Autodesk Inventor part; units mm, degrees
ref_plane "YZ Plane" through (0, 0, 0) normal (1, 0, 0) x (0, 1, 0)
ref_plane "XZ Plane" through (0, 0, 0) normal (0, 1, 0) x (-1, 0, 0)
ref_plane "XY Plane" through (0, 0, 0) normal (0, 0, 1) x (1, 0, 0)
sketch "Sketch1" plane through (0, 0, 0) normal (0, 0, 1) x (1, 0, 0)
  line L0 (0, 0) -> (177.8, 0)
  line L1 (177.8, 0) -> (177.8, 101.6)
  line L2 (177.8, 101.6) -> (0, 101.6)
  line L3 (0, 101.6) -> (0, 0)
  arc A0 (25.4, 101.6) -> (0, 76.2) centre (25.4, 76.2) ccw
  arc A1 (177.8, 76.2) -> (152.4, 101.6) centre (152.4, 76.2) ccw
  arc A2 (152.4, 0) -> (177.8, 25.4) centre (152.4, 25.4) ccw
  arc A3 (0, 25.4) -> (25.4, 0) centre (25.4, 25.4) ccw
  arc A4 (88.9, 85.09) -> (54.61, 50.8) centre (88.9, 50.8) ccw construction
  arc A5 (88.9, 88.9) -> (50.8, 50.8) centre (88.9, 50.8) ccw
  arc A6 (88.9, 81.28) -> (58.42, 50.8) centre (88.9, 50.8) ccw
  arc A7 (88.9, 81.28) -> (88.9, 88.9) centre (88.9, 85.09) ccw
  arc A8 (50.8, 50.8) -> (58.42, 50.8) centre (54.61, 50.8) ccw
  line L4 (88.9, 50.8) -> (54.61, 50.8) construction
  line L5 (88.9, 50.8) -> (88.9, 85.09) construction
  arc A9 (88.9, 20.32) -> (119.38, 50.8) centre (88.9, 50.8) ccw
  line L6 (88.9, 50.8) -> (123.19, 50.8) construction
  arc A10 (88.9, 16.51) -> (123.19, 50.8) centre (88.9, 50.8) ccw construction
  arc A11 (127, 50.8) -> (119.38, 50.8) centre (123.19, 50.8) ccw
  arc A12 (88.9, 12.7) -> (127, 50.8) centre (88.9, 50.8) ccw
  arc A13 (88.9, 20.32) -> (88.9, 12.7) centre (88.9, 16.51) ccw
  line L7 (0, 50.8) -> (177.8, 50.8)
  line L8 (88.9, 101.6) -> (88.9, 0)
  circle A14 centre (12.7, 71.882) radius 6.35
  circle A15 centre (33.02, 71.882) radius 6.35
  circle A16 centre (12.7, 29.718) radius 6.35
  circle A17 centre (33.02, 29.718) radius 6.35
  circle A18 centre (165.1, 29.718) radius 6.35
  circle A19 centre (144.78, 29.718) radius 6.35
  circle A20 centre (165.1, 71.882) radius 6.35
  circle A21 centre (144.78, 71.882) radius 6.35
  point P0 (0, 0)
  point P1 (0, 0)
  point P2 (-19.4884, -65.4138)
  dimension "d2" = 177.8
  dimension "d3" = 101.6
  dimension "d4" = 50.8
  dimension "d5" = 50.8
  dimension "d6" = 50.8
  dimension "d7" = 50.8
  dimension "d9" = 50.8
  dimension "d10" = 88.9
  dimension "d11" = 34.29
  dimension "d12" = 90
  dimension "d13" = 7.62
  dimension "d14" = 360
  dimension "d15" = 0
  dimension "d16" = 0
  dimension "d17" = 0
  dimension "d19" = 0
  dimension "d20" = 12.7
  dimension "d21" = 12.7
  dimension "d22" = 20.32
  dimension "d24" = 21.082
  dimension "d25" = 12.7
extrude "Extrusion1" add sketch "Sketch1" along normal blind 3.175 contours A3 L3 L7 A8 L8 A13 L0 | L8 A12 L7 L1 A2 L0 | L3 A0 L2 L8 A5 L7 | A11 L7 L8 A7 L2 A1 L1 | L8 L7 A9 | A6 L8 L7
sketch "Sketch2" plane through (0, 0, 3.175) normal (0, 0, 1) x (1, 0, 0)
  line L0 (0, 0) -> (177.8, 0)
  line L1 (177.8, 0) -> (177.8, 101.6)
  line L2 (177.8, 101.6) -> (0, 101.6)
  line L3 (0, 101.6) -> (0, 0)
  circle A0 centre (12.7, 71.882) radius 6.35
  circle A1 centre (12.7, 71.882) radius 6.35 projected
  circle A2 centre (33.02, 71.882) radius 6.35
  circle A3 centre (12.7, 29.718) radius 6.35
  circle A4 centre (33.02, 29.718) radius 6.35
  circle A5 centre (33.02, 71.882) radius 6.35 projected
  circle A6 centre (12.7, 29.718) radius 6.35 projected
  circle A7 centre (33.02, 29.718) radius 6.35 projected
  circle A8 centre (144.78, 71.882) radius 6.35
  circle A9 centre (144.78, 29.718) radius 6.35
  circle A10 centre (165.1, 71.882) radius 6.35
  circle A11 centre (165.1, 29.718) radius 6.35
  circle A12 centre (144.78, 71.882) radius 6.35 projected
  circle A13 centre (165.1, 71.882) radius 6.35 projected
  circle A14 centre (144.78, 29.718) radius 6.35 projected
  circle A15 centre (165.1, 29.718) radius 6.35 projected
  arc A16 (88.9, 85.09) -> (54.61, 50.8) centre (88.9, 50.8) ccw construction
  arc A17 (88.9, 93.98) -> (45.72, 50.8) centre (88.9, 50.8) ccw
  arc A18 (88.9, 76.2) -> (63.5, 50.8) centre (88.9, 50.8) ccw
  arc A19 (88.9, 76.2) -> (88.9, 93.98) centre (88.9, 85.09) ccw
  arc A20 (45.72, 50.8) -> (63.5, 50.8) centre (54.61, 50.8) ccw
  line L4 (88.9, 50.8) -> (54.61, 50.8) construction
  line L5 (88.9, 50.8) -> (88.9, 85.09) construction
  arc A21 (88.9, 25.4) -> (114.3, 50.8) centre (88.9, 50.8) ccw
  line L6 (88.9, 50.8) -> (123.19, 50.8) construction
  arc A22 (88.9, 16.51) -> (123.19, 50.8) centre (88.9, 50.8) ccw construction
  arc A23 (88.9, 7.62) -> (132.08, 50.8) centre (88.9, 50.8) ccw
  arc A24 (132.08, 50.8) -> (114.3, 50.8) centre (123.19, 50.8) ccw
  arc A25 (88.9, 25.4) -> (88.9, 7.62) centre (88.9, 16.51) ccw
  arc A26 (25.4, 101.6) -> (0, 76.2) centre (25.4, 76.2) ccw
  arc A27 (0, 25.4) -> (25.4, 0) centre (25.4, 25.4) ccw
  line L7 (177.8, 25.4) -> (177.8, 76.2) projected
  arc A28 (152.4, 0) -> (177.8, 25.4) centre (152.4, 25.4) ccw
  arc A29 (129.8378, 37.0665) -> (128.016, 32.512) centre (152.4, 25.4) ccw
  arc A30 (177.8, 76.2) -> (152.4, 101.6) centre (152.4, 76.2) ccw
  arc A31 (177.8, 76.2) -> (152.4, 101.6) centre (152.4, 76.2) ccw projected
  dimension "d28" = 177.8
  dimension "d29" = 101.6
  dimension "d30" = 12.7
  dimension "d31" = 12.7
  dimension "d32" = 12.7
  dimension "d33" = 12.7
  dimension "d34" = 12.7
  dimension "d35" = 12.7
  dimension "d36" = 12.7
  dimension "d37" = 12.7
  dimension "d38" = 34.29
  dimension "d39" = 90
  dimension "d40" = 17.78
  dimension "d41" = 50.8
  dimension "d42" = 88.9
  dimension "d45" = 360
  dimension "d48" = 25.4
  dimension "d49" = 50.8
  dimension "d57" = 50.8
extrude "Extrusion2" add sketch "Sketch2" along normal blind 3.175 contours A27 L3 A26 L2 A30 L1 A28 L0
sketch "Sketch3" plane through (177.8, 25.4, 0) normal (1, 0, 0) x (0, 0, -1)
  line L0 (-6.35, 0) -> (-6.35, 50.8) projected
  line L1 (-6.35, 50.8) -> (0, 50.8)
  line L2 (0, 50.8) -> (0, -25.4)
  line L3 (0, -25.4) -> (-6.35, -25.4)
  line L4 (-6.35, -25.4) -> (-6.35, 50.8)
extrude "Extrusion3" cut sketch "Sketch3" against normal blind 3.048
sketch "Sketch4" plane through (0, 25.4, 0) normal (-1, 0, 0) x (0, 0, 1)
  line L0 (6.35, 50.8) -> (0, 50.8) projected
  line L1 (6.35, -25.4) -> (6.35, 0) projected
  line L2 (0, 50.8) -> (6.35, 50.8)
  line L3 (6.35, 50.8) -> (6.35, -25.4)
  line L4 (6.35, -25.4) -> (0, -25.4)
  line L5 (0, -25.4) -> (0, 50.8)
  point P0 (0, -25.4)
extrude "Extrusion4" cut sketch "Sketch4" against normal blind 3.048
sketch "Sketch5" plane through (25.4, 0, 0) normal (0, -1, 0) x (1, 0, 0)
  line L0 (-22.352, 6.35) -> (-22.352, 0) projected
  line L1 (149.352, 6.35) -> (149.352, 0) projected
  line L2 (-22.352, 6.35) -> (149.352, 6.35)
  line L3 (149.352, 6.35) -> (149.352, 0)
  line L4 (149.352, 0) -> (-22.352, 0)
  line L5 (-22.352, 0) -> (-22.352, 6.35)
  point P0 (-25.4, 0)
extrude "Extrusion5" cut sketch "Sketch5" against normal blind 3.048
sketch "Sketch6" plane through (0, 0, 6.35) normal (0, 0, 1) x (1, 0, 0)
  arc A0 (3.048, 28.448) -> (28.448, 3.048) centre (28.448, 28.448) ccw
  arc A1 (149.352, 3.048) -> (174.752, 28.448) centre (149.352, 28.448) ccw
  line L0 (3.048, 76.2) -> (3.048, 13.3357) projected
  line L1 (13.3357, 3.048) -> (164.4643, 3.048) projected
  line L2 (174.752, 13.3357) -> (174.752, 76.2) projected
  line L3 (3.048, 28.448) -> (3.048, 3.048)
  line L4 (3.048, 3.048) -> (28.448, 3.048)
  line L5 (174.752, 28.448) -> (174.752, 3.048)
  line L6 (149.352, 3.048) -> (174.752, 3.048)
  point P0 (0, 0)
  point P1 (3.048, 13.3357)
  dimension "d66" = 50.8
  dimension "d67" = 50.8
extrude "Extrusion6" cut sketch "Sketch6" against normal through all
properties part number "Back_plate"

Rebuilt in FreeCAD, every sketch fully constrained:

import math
import FreeCAD as App
import Part
import Sketcher

V = App.Vector
Q = App.Units.Quantity


def add_polygon(sketch, points):
    """Adds a closed chain of lines whose ends are joined by coincident constraints."""
    first, n = sketch.GeometryCount, len(points)
    for a, b in zip(points, points[1:] + points[:1]):
        sketch.addGeometry(Part.LineSegment(App.Vector(*a, 0), App.Vector(*b, 0)), False)
    for i in range(n):
        sketch.addConstraint(Sketcher.Constraint("Coincident", first + i, 2, first + (i + 1) % n, 1))

doc = App.newDocument("Part")
body = doc.addObject("PartDesign::Body", "Body")

# Sketch on XY plane
sketch1 = body.newObject("Sketcher::SketchObject", "Sketch")
sketch1.AttachmentSupport = (doc.getObject("XY_Plane"), [""])
sketch1.MapMode = "FlatFace"
sketch1.addGeometry(Part.ArcOfCircle(Part.Circle(V(25.4, 25.4, 0), V(0, 0, 1), 25.4), math.radians(180), math.radians(270)), False)
sketch1.addGeometry(Part.LineSegment(V(25.4, 0, 0), V(152.4, 0, 0)), False)
sketch1.addGeometry(Part.ArcOfCircle(Part.Circle(V(152.4, 25.4, 0), V(0, 0, 1), 25.4), math.radians(-90), math.radians(0)), False)
sketch1.addGeometry(Part.LineSegment(V(177.8, 25.4, 0), V(177.8, 76.2, 0)), False)
sketch1.addGeometry(Part.ArcOfCircle(Part.Circle(V(152.4, 76.2, 0), V(0, 0, 1), 25.4), math.radians(0), math.radians(90)), False)
sketch1.addGeometry(Part.LineSegment(V(152.4, 101.6, 0), V(25.4, 101.6, 0)), False)
sketch1.addGeometry(Part.ArcOfCircle(Part.Circle(V(25.4, 76.2, 0), V(0, 0, 1), 25.4), math.radians(90), math.radians(180)), False)
sketch1.addGeometry(Part.LineSegment(V(0, 76.2, 0), V(0, 25.4, 0)), False)
sketch1.addGeometry(Part.ArcOfCircle(Part.Circle(V(54.6, 50.8, 0), V(0, 0, 1), 3.8), math.radians(180), math.radians(360)), False)
sketch1.addGeometry(Part.ArcOfCircle(Part.Circle(V(88.9, 50.8, 0), V(0, 0, 1), 38.1), math.radians(90), math.radians(180)), False)
sketch1.addGeometry(Part.ArcOfCircle(Part.Circle(V(88.9, 85.1, 0), V(0, 0, 1), 3.8), math.radians(-90), math.radians(90)), False)
sketch1.addGeometry(Part.ArcOfCircle(Part.Circle(V(88.9, 50.8, 0), V(0, 0, 1), 30.5), math.radians(90), math.radians(180)), False)
sketch1.addGeometry(Part.ArcOfCircle(Part.Circle(V(88.9, 16.5, 0), V(0, 0, 1), 3.8), math.radians(90), math.radians(270)), False)
sketch1.addGeometry(Part.ArcOfCircle(Part.Circle(V(88.9, 50.8, 0), V(0, 0, 1), 30.5), math.radians(-90), math.radians(0)), False)
sketch1.addGeometry(Part.ArcOfCircle(Part.Circle(V(123.2, 50.8, 0), V(0, 0, 1), 3.8), math.radians(0), math.radians(180)), False)
sketch1.addGeometry(Part.ArcOfCircle(Part.Circle(V(88.9, 50.8, 0), V(0, 0, 1), 38.1), math.radians(-90), math.radians(0)), False)
sketch1.addGeometry(Part.Circle(V(12.7, 29.7, 0), V(0, 0, 1), 6.3), False)
sketch1.addGeometry(Part.Circle(V(33, 29.7, 0), V(0, 0, 1), 6.3), False)
sketch1.addGeometry(Part.Circle(V(33, 71.9, 0), V(0, 0, 1), 6.3), False)
sketch1.addGeometry(Part.Circle(V(12.7, 71.9, 0), V(0, 0, 1), 6.3), False)
sketch1.addGeometry(Part.Circle(V(165.1, 29.7, 0), V(0, 0, 1), 6.3), False)
sketch1.addGeometry(Part.Circle(V(144.8, 29.7, 0), V(0, 0, 1), 6.3), False)
sketch1.addGeometry(Part.Circle(V(144.8, 71.9, 0), V(0, 0, 1), 6.3), False)
sketch1.addGeometry(Part.Circle(V(165.1, 71.9, 0), V(0, 0, 1), 6.3), False)
sketch1.addConstraint(Sketcher.Constraint("Tangent", 0, 2, 1, 1))
sketch1.addConstraint(Sketcher.Constraint("Tangent", 1, 2, 2, 1))
sketch1.addConstraint(Sketcher.Constraint("Tangent", 2, 2, 3, 1))
sketch1.addConstraint(Sketcher.Constraint("Tangent", 3, 2, 4, 1))
sketch1.addConstraint(Sketcher.Constraint("Tangent", 4, 2, 5, 1))
sketch1.addConstraint(Sketcher.Constraint("Tangent", 5, 2, 6, 1))
sketch1.addConstraint(Sketcher.Constraint("Tangent", 6, 2, 7, 1))
sketch1.addConstraint(Sketcher.Constraint("Tangent", 7, 2, 0, 1))
sketch1.addConstraint(Sketcher.Constraint("Tangent", 8, 1, 9, 2))
sketch1.addConstraint(Sketcher.Constraint("Tangent", 9, 1, 10, 2))
sketch1.addConstraint(Sketcher.Constraint("Tangent", 10, 1, 11, 1))
sketch1.addConstraint(Sketcher.Constraint("Tangent", 11, 2, 8, 2))
sketch1.addConstraint(Sketcher.Constraint("Tangent", 12, 1, 13, 1))
sketch1.addConstraint(Sketcher.Constraint("Tangent", 13, 2, 14, 2))
sketch1.addConstraint(Sketcher.Constraint("Tangent", 14, 1, 15, 2))
sketch1.addConstraint(Sketcher.Constraint("Tangent", 15, 1, 12, 2))
sketch1.addConstraint(Sketcher.Constraint("Horizontal", 1))
sketch1.addConstraint(Sketcher.Constraint("Vertical", 3))
sketch1.addConstraint(Sketcher.Constraint("Horizontal", 5))
sketch1.addConstraint(Sketcher.Constraint("Vertical", 7))
sketch1.addConstraint(Sketcher.Constraint("Coincident", 11, 3, 9, 3))
sketch1.addConstraint(Sketcher.Constraint("Coincident", 13, 3, 9, 3))
sketch1.addConstraint(Sketcher.Constraint("Coincident", 15, 3, 9, 3))
sketch1.addConstraint(Sketcher.Constraint("Equal", 0, 2))
sketch1.addConstraint(Sketcher.Constraint("Equal", 2, 4))
sketch1.addConstraint(Sketcher.Constraint("Equal", 4, 6))
sketch1.addConstraint(Sketcher.Constraint("Equal", 10, 12))
sketch1.addConstraint(Sketcher.Constraint("Equal", 11, 13))
sketch1.addConstraint(Sketcher.Constraint("Equal", 16, 17))
sketch1.addConstraint(Sketcher.Constraint("Equal", 17, 18))
sketch1.addConstraint(Sketcher.Constraint("Equal", 18, 19))
sketch1.addConstraint(Sketcher.Constraint("Equal", 19, 20))
sketch1.addConstraint(Sketcher.Constraint("Equal", 20, 21))
sketch1.addConstraint(Sketcher.Constraint("Equal", 21, 22))
sketch1.addConstraint(Sketcher.Constraint("Equal", 22, 23))
sketch1.addConstraint(Sketcher.Constraint("PointOnObject", 0, 2, -1))
sketch1.addConstraint(Sketcher.Constraint("PointOnObject", 6, 2, -2))
sketch1.addConstraint(Sketcher.Constraint("Horizontal", 8, 3, 9, 3))
sketch1.addConstraint(Sketcher.Constraint("Horizontal", 13, 3, 14, 3))
sketch1.addConstraint(Sketcher.Constraint("Horizontal", 16, 3, 17, 3))
sketch1.addConstraint(Sketcher.Constraint("Horizontal", 18, 3, 19, 3))
sketch1.addConstraint(Sketcher.Constraint("Horizontal", 17, 3, 20, 3))
sketch1.addConstraint(Sketcher.Constraint("Horizontal", 20, 3, 21, 3))
sketch1.addConstraint(Sketcher.Constraint("Horizontal", 19, 3, 22, 3))
sketch1.addConstraint(Sketcher.Constraint("Horizontal", 22, 3, 23, 3))
sketch1.addConstraint(Sketcher.Constraint("Vertical", 9, 3, 10, 3))
sketch1.addConstraint(Sketcher.Constraint("Vertical", 11, 3, 12, 3))
sketch1.addConstraint(Sketcher.Constraint("Vertical", 17, 3, 18, 3))
sketch1.addConstraint(Sketcher.Constraint("Vertical", 16, 3, 19, 3))
sketch1.addConstraint(Sketcher.Constraint("Vertical", 21, 3, 22, 3))
sketch1.addConstraint(Sketcher.Constraint("Vertical", 20, 3, 23, 3))
sketch1.addConstraint(Sketcher.Constraint("Radius", 0, Q("1 in")))
sketch1.addConstraint(Sketcher.Constraint("Diameter", 16, Q("0.5 in")))
sketch1.addConstraint(Sketcher.Constraint("DistanceY", 3, 1, 3, 2, Q("2 in")))
sketch1.addConstraint(Sketcher.Constraint("Radius", 8, Q("0.15 in")))
sketch1.addConstraint(Sketcher.Constraint("DistanceY", -1, 1, 8, 3, Q("2 in")))
sketch1.addConstraint(Sketcher.Constraint("DistanceX", -1, 1, 2, 2, Q("7 in")))
sketch1.addConstraint(Sketcher.Constraint("DistanceX", -1, 1, 8, 1, Q("2 in")))
sketch1.addConstraint(Sketcher.Constraint("DistanceX", -1, 1, 9, 3, Q("3.5 in")))
sketch1.addConstraint(Sketcher.Constraint("DistanceX", -1, 1, 16, 3, Q("0.5 in")))
sketch1.addConstraint(Sketcher.Constraint("DistanceX", 0, 3, 17, 3, Q("0.3 in")))
sketch1.addConstraint(Sketcher.Constraint("DistanceX", 2, 3, 20, 3, Q("0.5 in")))
sketch1.addConstraint(Sketcher.Constraint("DistanceX", 21, 3, 2, 3, Q("0.3 in")))
sketch1.addConstraint(Sketcher.Constraint("DistanceY", 16, 3, 8, 3, Q("0.83 in")))
sketch1.addConstraint(Sketcher.Constraint("DistanceY", 8, 3, 18, 3, Q("0.83 in")))
pad1 = body.newObject("PartDesign::Pad", "Pad")
pad1.Profile = sketch1
pad1.Length = Q("0.125 in")

# Sketch on XY plane
sketch2 = body.newObject("Sketcher::SketchObject", "Sketch001")
sketch2.AttachmentSupport = (doc.getObject("XY_Plane"), [""])
sketch2.MapMode = "FlatFace"
sketch2.AttachmentOffset = App.Placement(V(0, 0, 0.125 * 25.4), App.Rotation())
sketch2.addGeometry(Part.ArcOfCircle(Part.Circle(V(25, 25, 0), V(0, 0, 1), 25), math.radians(180), math.radians(270)), False)
sketch2.addGeometry(Part.LineSegment(V(25, 0, 0), V(152, 0, 0)), False)
sketch2.addGeometry(Part.ArcOfCircle(Part.Circle(V(152, 25, 0), V(0, 0, 1), 25), math.radians(-90), math.radians(0)), False)
sketch2.addGeometry(Part.LineSegment(V(178, 25, 0), V(178, 76, 0)), False)
sketch2.addGeometry(Part.ArcOfCircle(Part.Circle(V(152, 76, 0), V(0, 0, 1), 25), math.radians(0), math.radians(90)), False)
sketch2.addGeometry(Part.LineSegment(V(152, 102, 0), V(25, 102, 0)), False)
sketch2.addGeometry(Part.ArcOfCircle(Part.Circle(V(25, 76, 0), V(0, 0, 1), 25), math.radians(90), math.radians(180)), False)
sketch2.addGeometry(Part.LineSegment(V(0, 76, 0), V(0, 25, 0)), False)
sketch2.addGeometry(Part.Circle(V(13, 30, 0), V(0, 0, 1), 6), False)
sketch2.addGeometry(Part.Circle(V(33, 30, 0), V(0, 0, 1), 6), False)
sketch2.addGeometry(Part.ArcOfCircle(Part.Circle(V(89, 17, 0), V(0, 0, 1), 9), math.radians(90), math.radians(270)), False)
sketch2.addGeometry(Part.ArcOfCircle(Part.Circle(V(89, 51, 0), V(0, 0, 1), 25), math.radians(-90), math.radians(0)), False)
sketch2.addGeometry(Part.ArcOfCircle(Part.Circle(V(123, 51, 0), V(0, 0, 1), 9), math.radians(0), math.radians(180)), False)
sketch2.addGeometry(Part.ArcOfCircle(Part.Circle(V(89, 51, 0), V(0, 0, 1), 43), math.radians(-90), math.radians(0)), False)
sketch2.addGeometry(Part.Circle(V(145, 30, 0), V(0, 0, 1), 6), False)
sketch2.addGeometry(Part.Circle(V(165, 30, 0), V(0, 0, 1), 6), False)
sketch2.addGeometry(Part.Circle(V(13, 72, 0), V(0, 0, 1), 6), False)
sketch2.addGeometry(Part.Circle(V(33, 72, 0), V(0, 0, 1), 6), False)
sketch2.addGeometry(Part.ArcOfCircle(Part.Circle(V(89, 51, 0), V(0, 0, 1), 43), math.radians(90), math.radians(180)), False)
sketch2.addGeometry(Part.ArcOfCircle(Part.Circle(V(89, 85, 0), V(0, 0, 1), 9), math.radians(-90), math.radians(90)), False)
sketch2.addGeometry(Part.ArcOfCircle(Part.Circle(V(89, 51, 0), V(0, 0, 1), 25), math.radians(90), math.radians(180)), False)
sketch2.addGeometry(Part.ArcOfCircle(Part.Circle(V(55, 51, 0), V(0, 0, 1), 9), math.radians(180), math.radians(360)), False)
sketch2.addGeometry(Part.Circle(V(145, 72, 0), V(0, 0, 1), 6), False)
sketch2.addGeometry(Part.Circle(V(165, 72, 0), V(0, 0, 1), 6), False)
sketch2.addConstraint(Sketcher.Constraint("Tangent", 0, 2, 1, 1))
sketch2.addConstraint(Sketcher.Constraint("Tangent", 1, 2, 2, 1))
sketch2.addConstraint(Sketcher.Constraint("Tangent", 2, 2, 3, 1))
sketch2.addConstraint(Sketcher.Constraint("Tangent", 3, 2, 4, 1))
sketch2.addConstraint(Sketcher.Constraint("Tangent", 4, 2, 5, 1))
sketch2.addConstraint(Sketcher.Constraint("Tangent", 5, 2, 6, 1))
sketch2.addConstraint(Sketcher.Constraint("Tangent", 6, 2, 7, 1))
sketch2.addConstraint(Sketcher.Constraint("Tangent", 7, 2, 0, 1))
sketch2.addConstraint(Sketcher.Constraint("Tangent", 10, 1, 11, 1))
sketch2.addConstraint(Sketcher.Constraint("Tangent", 11, 2, 12, 2))
sketch2.addConstraint(Sketcher.Constraint("Tangent", 12, 1, 13, 2))
sketch2.addConstraint(Sketcher.Constraint("Tangent", 13, 1, 10, 2))
sketch2.addConstraint(Sketcher.Constraint("Tangent", 18, 1, 19, 2))
sketch2.addConstraint(Sketcher.Constraint("Tangent", 19, 1, 20, 1))
sketch2.addConstraint(Sketcher.Constraint("Tangent", 20, 2, 21, 2))
sketch2.addConstraint(Sketcher.Constraint("Tangent", 21, 1, 18, 2))
sketch2.addConstraint(Sketcher.Constraint("Horizontal", 1))
sketch2.addConstraint(Sketcher.Constraint("Vertical", 3))
sketch2.addConstraint(Sketcher.Constraint("Horizontal", 5))
sketch2.addConstraint(Sketcher.Constraint("Vertical", 7))
sketch2.addConstraint(Sketcher.Constraint("Coincident", 13, 3, 11, 3))
sketch2.addConstraint(Sketcher.Constraint("Coincident", 18, 3, 11, 3))
sketch2.addConstraint(Sketcher.Constraint("Coincident", 20, 3, 11, 3))
sketch2.addConstraint(Sketcher.Constraint("Equal", 0, 2))
sketch2.addConstraint(Sketcher.Constraint("Equal", 2, 4))
sketch2.addConstraint(Sketcher.Constraint("Equal", 4, 6))
sketch2.addConstraint(Sketcher.Constraint("Equal", 8, 9))
sketch2.addConstraint(Sketcher.Constraint("Equal", 6, 11))
sketch2.addConstraint(Sketcher.Constraint("Equal", 9, 14))
sketch2.addConstraint(Sketcher.Constraint("Equal", 14, 15))
sketch2.addConstraint(Sketcher.Constraint("Equal", 15, 16))
sketch2.addConstraint(Sketcher.Constraint("Equal", 16, 17))
sketch2.addConstraint(Sketcher.Constraint("Equal", 13, 18))
sketch2.addConstraint(Sketcher.Constraint("Equal", 12, 19))
sketch2.addConstraint(Sketcher.Constraint("Equal", 17, 22))
sketch2.addConstraint(Sketcher.Constraint("Equal", 22, 23))
sketch2.addConstraint(Sketcher.Constraint("PointOnObject", 0, 2, -1))
sketch2.addConstraint(Sketcher.Constraint("PointOnObject", 6, 2, -2))
sketch2.addConstraint(Sketcher.Constraint("Horizontal", 8, 3, 9, 3))
sketch2.addConstraint(Sketcher.Constraint("Horizontal", 11, 3, 12, 3))
sketch2.addConstraint(Sketcher.Constraint("Horizontal", 9, 3, 14, 3))
sketch2.addConstraint(Sketcher.Constraint("Horizontal", 14, 3, 15, 3))
sketch2.addConstraint(Sketcher.Constraint("Horizontal", 16, 3, 17, 3))
sketch2.addConstraint(Sketcher.Constraint("Horizontal", 20, 3, 21, 3))
sketch2.addConstraint(Sketcher.Constraint("Horizontal", 17, 3, 22, 3))
sketch2.addConstraint(Sketcher.Constraint("Horizontal", 22, 3, 23, 3))
sketch2.addConstraint(Sketcher.Constraint("Horizontal", 7, 2, 10, 1))
sketch2.addConstraint(Sketcher.Constraint("Horizontal", 6, 2, 19, 1))
sketch2.addConstraint(Sketcher.Constraint("Vertical", 10, 3, 11, 3))
sketch2.addConstraint(Sketcher.Constraint("Vertical", 8, 3, 16, 3))
sketch2.addConstraint(Sketcher.Constraint("Vertical", 9, 3, 17, 3))
sketch2.addConstraint(Sketcher.Constraint("Vertical", 18, 3, 19, 3))
sketch2.addConstraint(Sketcher.Constraint("Vertical", 14, 3, 22, 3))
sketch2.addConstraint(Sketcher.Constraint("Vertical", 15, 3, 23, 3))
sketch2.addConstraint(Sketcher.Constraint("Radius", 0, Q("1 in")))
sketch2.addConstraint(Sketcher.Constraint("Diameter", 8, Q("0.5 in")))
sketch2.addConstraint(Sketcher.Constraint("Radius", 10, Q("0.35 in")))
sketch2.addConstraint(Sketcher.Constraint("DistanceX", -1, 1, 2, 2, Q("7 in")))
sketch2.addConstraint(Sketcher.Constraint("DistanceX", -1, 1, 8, 3, Q("0.5 in")))
sketch2.addConstraint(Sketcher.Constraint("DistanceX", -1, 1, 10, 3, Q("3.5 in")))
sketch2.addConstraint(Sketcher.Constraint("DistanceX", 2, 3, 15, 3, Q("0.5 in")))
sketch2.addConstraint(Sketcher.Constraint("DistanceX", 12, 1, 14, 3, Q("0.5 in")))
sketch2.addConstraint(Sketcher.Constraint("DistanceX", 9, 3, 21, 1, Q("0.5 in")))
sketch2.addConstraint(Sketcher.Constraint("DistanceY", -1, 1, 8, 3, Q("1.17 in")))
sketch2.addConstraint(Sketcher.Constraint("DistanceY", -1, 1, 16, 3, Q("2.83 in")))
pad2 = body.newObject("PartDesign::Pad", "Pad001")
pad2.Profile = sketch2
pad2.Length = Q("0.125 in")

# Sketch on YZ plane
sketch3 = body.newObject("Sketcher::SketchObject", "Sketch002")
sketch3.AttachmentSupport = (doc.getObject("YZ_Plane"), [""])
sketch3.MapMode = "FlatFace"
sketch3.AttachmentOffset = App.Placement(V(0, 0, 7 * 25.4), App.Rotation())
add_polygon(sketch3, [(76, 6), (0, 6), (0, 0), (76, 0)])  # lines 0-3
sketch3.addConstraint(Sketcher.Constraint("Horizontal", 0))
sketch3.addConstraint(Sketcher.Constraint("Vertical", 1))
sketch3.addConstraint(Sketcher.Constraint("Horizontal", 2))
sketch3.addConstraint(Sketcher.Constraint("Vertical", 3))
sketch3.addConstraint(Sketcher.Constraint("Coincident", 1, 2, -1, 1))
sketch3.addConstraint(Sketcher.Constraint("DistanceX", 0, 2, 0, 1, Q("3 in")))
sketch3.addConstraint(Sketcher.Constraint("DistanceY", 1, 2, 1, 1, Q("0.25 in")))
pocket1 = body.newObject("PartDesign::Pocket", "Pocket")
pocket1.Profile = sketch3
pocket1.Length = Q("0.12 in")

# Sketch on YZ plane
sketch4 = body.newObject("Sketcher::SketchObject", "Sketch003")
sketch4.AttachmentSupport = (doc.getObject("YZ_Plane"), [""])
sketch4.MapMode = "FlatFace"
add_polygon(sketch4, [(0, 6), (76, 6), (76, 0), (0, 0)])  # lines 0-3
sketch4.addConstraint(Sketcher.Constraint("Horizontal", 0))
sketch4.addConstraint(Sketcher.Constraint("Vertical", 1))
sketch4.addConstraint(Sketcher.Constraint("Horizontal", 2))
sketch4.addConstraint(Sketcher.Constraint("Vertical", 3))
sketch4.addConstraint(Sketcher.Constraint("Coincident", 2, 2, -1, 1))
sketch4.addConstraint(Sketcher.Constraint("DistanceX", 0, 1, 0, 2, Q("3 in")))
sketch4.addConstraint(Sketcher.Constraint("DistanceY", 1, 2, 1, 1, Q("0.25 in")))
pocket2 = body.newObject("PartDesign::Pocket", "Pocket001")
pocket2.Profile = sketch4
pocket2.Length = Q("0.12 in")
pocket2.Reversed = True

# Sketch on XZ plane
sketch5 = body.newObject("Sketcher::SketchObject", "Sketch004")
sketch5.AttachmentSupport = (doc.getObject("XZ_Plane"), [""])
sketch5.MapMode = "FlatFace"
add_polygon(sketch5, [(175, 6), (3, 6), (3, 0), (175, 0)])  # lines 0-3
sketch5.addConstraint(Sketcher.Constraint("Horizontal", 0))
sketch5.addConstraint(Sketcher.Constraint("Vertical", 1))
sketch5.addConstraint(Sketcher.Constraint("Horizontal", 2))
sketch5.addConstraint(Sketcher.Constraint("Vertical", 3))
sketch5.addConstraint(Sketcher.Constraint("PointOnObject", 1, 2, -1))
sketch5.addConstraint(Sketcher.Constraint("DistanceX", 0, 2, 0, 1, Q("6.76 in")))
sketch5.addConstraint(Sketcher.Constraint("DistanceY", 1, 2, 1, 1, Q("0.25 in")))
sketch5.addConstraint(Sketcher.Constraint("DistanceX", -1, 1, 0, 2, Q("0.12 in")))
pocket3 = body.newObject("PartDesign::Pocket", "Pocket002")
pocket3.Profile = sketch5
pocket3.Length = Q("0.12 in")

# Sketch on XY plane
sketch6 = body.newObject("Sketcher::SketchObject", "Sketch005")
sketch6.AttachmentSupport = (doc.getObject("XY_Plane"), [""])
sketch6.MapMode = "FlatFace"
sketch6.AttachmentOffset = App.Placement(V(0, 0, 0.25 * 25.4), App.Rotation())
sketch6.addGeometry(Part.ArcOfCircle(Part.Circle(V(149, 28, 0), V(0, 0, 1), 25), math.radians(-90), math.radians(0)), False)
sketch6.addGeometry(Part.LineSegment(V(149, 3, 0), V(175, 3, 0)), False)
sketch6.addGeometry(Part.LineSegment(V(175, 3, 0), V(175, 28, 0)), False)
sketch6.addGeometry(Part.ArcOfCircle(Part.Circle(V(28, 28, 0), V(0, 0, 1), 25), math.radians(180), math.radians(270)), False)
sketch6.addGeometry(Part.LineSegment(V(3, 28, 0), V(3, 3, 0)), False)
sketch6.addGeometry(Part.LineSegment(V(3, 3, 0), V(28, 3, 0)), False)
sketch6.addConstraint(Sketcher.Constraint("Tangent", 0, 1, 1, 1))
sketch6.addConstraint(Sketcher.Constraint("Coincident", 1, 2, 2, 1))
sketch6.addConstraint(Sketcher.Constraint("Tangent", 2, 2, 0, 2))
sketch6.addConstraint(Sketcher.Constraint("Tangent", 3, 1, 4, 1))
sketch6.addConstraint(Sketcher.Constraint("Coincident", 4, 2, 5, 1))
sketch6.addConstraint(Sketcher.Constraint("Tangent", 5, 2, 3, 2))
sketch6.addConstraint(Sketcher.Constraint("Horizontal", 1))
sketch6.addConstraint(Sketcher.Constraint("Vertical", 2))
sketch6.addConstraint(Sketcher.Constraint("Vertical", 4))
sketch6.addConstraint(Sketcher.Constraint("Horizontal", 5))
sketch6.addConstraint(Sketcher.Constraint("Equal", 0, 3))
sketch6.addConstraint(Sketcher.Constraint("Horizontal", 0, 3, 3, 3))
sketch6.addConstraint(Sketcher.Constraint("Radius", 0, Q("1 in")))
sketch6.addConstraint(Sketcher.Constraint("DistanceX", -1, 1, 0, 3, Q("5.88 in")))
sketch6.addConstraint(Sketcher.Constraint("DistanceY", -1, 1, 0, 3, Q("1.12 in")))
sketch6.addConstraint(Sketcher.Constraint("DistanceX", -1, 1, 3, 3, Q("1.12 in")))
pocket4 = body.newObject("PartDesign::Pocket", "Pocket003")
pocket4.Profile = sketch6
pocket4.Type = "ThroughAll"

doc.recompute()
